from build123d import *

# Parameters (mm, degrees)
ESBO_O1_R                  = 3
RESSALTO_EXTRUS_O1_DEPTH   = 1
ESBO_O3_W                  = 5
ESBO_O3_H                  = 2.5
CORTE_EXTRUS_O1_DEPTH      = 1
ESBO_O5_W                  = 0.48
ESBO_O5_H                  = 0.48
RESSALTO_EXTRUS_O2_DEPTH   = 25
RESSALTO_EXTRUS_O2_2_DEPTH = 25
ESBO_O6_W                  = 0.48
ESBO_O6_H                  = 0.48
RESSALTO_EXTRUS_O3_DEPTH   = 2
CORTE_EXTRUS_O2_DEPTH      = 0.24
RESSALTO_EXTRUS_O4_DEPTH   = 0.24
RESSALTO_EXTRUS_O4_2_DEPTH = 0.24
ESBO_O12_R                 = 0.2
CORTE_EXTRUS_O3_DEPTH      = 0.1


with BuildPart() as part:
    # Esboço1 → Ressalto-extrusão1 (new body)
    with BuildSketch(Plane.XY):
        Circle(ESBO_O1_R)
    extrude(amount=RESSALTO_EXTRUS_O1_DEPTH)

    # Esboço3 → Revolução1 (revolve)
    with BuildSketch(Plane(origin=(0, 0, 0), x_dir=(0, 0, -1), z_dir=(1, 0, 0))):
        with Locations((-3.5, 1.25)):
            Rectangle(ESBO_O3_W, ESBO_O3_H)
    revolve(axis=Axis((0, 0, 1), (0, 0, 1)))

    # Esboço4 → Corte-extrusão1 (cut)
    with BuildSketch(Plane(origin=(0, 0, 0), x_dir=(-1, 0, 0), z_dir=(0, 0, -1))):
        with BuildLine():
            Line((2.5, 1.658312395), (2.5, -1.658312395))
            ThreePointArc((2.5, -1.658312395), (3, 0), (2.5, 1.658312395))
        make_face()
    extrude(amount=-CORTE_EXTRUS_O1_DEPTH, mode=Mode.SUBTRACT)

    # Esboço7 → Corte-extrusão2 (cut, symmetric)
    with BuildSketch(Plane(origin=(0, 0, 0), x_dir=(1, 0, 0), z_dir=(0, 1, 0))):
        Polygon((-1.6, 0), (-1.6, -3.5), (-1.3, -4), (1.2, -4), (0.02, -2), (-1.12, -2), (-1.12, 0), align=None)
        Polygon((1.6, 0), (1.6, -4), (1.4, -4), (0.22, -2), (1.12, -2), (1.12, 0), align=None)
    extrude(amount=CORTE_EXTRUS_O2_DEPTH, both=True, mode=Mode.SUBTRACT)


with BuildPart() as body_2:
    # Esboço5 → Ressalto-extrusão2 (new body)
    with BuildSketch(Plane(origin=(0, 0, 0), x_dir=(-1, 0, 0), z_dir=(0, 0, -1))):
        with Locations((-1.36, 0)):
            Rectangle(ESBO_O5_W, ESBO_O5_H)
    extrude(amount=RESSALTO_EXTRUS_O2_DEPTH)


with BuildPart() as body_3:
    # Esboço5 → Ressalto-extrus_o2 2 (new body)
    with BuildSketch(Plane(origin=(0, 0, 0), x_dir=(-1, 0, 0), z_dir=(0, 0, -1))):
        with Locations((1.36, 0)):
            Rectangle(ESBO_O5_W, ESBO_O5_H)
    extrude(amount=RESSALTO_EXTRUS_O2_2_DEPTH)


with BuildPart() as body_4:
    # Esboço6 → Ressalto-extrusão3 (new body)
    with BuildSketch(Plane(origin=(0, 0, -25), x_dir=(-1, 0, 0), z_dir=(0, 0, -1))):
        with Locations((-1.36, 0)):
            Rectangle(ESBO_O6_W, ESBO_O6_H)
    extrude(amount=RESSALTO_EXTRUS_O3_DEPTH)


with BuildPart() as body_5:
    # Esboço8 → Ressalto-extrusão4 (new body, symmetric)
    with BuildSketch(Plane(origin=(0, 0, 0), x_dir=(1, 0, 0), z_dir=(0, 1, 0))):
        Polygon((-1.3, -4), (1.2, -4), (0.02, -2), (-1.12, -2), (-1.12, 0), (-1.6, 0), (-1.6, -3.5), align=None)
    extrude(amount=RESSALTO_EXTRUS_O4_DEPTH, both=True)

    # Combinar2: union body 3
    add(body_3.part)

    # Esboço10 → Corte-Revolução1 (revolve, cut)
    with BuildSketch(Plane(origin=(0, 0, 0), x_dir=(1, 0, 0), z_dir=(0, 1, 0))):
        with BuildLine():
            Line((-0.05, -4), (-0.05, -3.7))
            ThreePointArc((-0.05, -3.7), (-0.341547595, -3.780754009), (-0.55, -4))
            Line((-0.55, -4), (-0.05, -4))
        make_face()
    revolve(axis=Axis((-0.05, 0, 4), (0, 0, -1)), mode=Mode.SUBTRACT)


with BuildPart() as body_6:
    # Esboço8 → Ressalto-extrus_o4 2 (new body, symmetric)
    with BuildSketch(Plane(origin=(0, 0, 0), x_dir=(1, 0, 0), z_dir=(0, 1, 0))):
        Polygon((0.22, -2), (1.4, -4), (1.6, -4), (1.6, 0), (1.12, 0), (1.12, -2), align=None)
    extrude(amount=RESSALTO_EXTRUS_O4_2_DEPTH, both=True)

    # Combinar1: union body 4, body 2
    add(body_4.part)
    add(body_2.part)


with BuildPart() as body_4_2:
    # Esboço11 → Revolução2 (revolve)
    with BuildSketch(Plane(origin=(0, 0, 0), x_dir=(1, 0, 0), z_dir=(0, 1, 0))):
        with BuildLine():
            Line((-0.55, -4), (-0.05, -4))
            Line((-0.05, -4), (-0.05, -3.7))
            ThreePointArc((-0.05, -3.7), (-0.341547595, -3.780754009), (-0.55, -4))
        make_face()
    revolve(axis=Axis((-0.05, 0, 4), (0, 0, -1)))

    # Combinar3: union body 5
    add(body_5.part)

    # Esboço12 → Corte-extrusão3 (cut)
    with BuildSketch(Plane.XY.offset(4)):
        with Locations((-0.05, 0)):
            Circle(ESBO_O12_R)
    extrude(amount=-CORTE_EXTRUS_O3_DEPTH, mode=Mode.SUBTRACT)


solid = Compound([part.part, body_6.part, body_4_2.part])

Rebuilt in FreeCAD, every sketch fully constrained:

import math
import FreeCAD as App
import Part
import Sketcher
from FreeCAD import Vector


def add_polygon(sketch, points):
    """Adds a closed chain of lines whose ends are joined by coincident constraints."""
    first, n = sketch.GeometryCount, len(points)
    for a, b in zip(points, points[1:] + points[:1]):
        sketch.addGeometry(Part.LineSegment(App.Vector(*a, 0), App.Vector(*b, 0)), False)
    for i in range(n):
        sketch.addConstraint(Sketcher.Constraint("Coincident", first + i, 2, first + (i + 1) % n, 1))

doc = App.newDocument("Part")
body = doc.addObject("PartDesign::Body", "Body")

# Sketch on XY plane
sketch1 = body.newObject("Sketcher::SketchObject", "Sketch")
sketch1.AttachmentSupport = (doc.getObject("XY_Plane"), [""])
sketch1.MapMode = "FlatFace"
sketch1.addGeometry(Part.Circle(Vector(0, 0, 0), Vector(0, 0, 1), 3), False)
sketch1.addConstraint(Sketcher.Constraint("Coincident", 0, 3, -1, 1))
sketch1.addConstraint(Sketcher.Constraint("Diameter", 0, 6.0))
pad1 = body.newObject("PartDesign::Pad", "Pad")
pad1.Profile = sketch1
pad1.Length = 1

# Sketch on YZ plane
sketch2 = body.newObject("Sketcher::SketchObject", "Sketch001")
sketch2.AttachmentSupport = (doc.getObject("YZ_Plane"), [""])
sketch2.MapMode = "FlatFace"
add_polygon(sketch2, [(2.5, 6), (0, 6), (0, 1), (2.5, 1)])  # lines 0-3
sketch2.addConstraint(Sketcher.Constraint("Horizontal", 0))
sketch2.addConstraint(Sketcher.Constraint("Vertical", 1))
sketch2.addConstraint(Sketcher.Constraint("Horizontal", 2))
sketch2.addConstraint(Sketcher.Constraint("Vertical", 3))
sketch2.addConstraint(Sketcher.Constraint("PointOnObject", 0, 2, -2))
sketch2.addConstraint(Sketcher.Constraint("DistanceY", 1, 2, 1, 1, 5.0))
sketch2.addConstraint(Sketcher.Constraint("DistanceX", 0, 2, 0, 1, 2.5))
sketch2.addConstraint(Sketcher.Constraint("DistanceY", -1, 1, 0, 2, 6.0))
revolution = body.newObject("PartDesign::Revolution", "Revolution")
revolution.Profile = sketch2
revolution.ReferenceAxis = (sketch2, ["V_Axis"])
revolution.Angle = 360

# Sketch on XY plane
sketch3 = body.newObject("Sketcher::SketchObject", "Sketch002")
sketch3.AttachmentSupport = (doc.getObject("XY_Plane"), [""])
sketch3.MapMode = "FlatFace"
sketch3.addGeometry(Part.LineSegment(Vector(-2.5, 1.7, 0), Vector(-2.5, -1.7, 0)), False)
sketch3.addGeometry(Part.ArcOfCircle(Part.Circle(Vector(0, 0, 0), Vector(0, 0, 1), 3), math.radians(146), math.radians(214)), False)
sketch3.addConstraint(Sketcher.Constraint("Coincident", 0, 1, 1, 1))
sketch3.addConstraint(Sketcher.Constraint("Coincident", 1, 2, 0, 2))
sketch3.addConstraint(Sketcher.Constraint("Vertical", 0))
sketch3.addConstraint(Sketcher.Constraint("Coincident", 1, 3, -1, 1))
sketch3.addConstraint(Sketcher.Constraint("Radius", 1, 3.0))
sketch3.addConstraint(Sketcher.Constraint("DistanceX", 0, 1, -1, 1, 2.5))
pocket1 = body.newObject("PartDesign::Pocket", "Pocket")
pocket1.Profile = sketch3
pocket1.Length = 1
pocket1.Reversed = True

# Sketch on XZ plane
sketch4 = body.newObject("Sketcher::SketchObject", "Sketch003")
sketch4.AttachmentSupport = (doc.getObject("XZ_Plane"), [""])
sketch4.MapMode = "FlatFace"
add_polygon(sketch4, [(-1.6, 0), (-1.6, 3.5), (-1.3, 4), (1.2, 4), (0.02, 2), (-1.12, 2), (-1.12, 0)])  # lines 0-6
add_polygon(sketch4, [(1.6, 4), (1.6, 0), (1.12, 0), (1.12, 2), (0.22, 2), (1.4, 4)])  # lines 7-12
sketch4.addConstraint(Sketcher.Constraint("Vertical", 0))
sketch4.addConstraint(Sketcher.Constraint("Horizontal", 2))
sketch4.addConstraint(Sketcher.Constraint("Horizontal", 4))
sketch4.addConstraint(Sketcher.Constraint("Vertical", 5))
sketch4.addConstraint(Sketcher.Constraint("Horizontal", 6))
sketch4.addConstraint(Sketcher.Constraint("Vertical", 7))
sketch4.addConstraint(Sketcher.Constraint("Horizontal", 8))
sketch4.addConstraint(Sketcher.Constraint("Vertical", 9))
sketch4.addConstraint(Sketcher.Constraint("Horizontal", 10))
sketch4.addConstraint(Sketcher.Constraint("Horizontal", 12))
sketch4.addConstraint(Sketcher.Constraint("Symmetric", 6, 2, 7, 2, -1, 1))
sketch4.addConstraint(Sketcher.Constraint("Symmetric", 5, 2, 8, 2, -2))
sketch4.addConstraint(Sketcher.Constraint("Parallel", 3, 11))
sketch4.addConstraint(Sketcher.Constraint("Horizontal", 4, 2, 9, 2))
sketch4.addConstraint(Sketcher.Constraint("Horizontal", 2, 2, 11, 2))
sketch4.addConstraint(Sketcher.Constraint("DistanceY", 5, 2, 5, 1, 2.0))
sketch4.addConstraint(Sketcher.Constraint("DistanceY", 7, 2, 7, 1, 4.0))
sketch4.addConstraint(Sketcher.Constraint("DistanceX", 2, 1, 2, 2, 2.5))
sketch4.addConstraint(Sketcher.Constraint("DistanceX", 10, 2, 10, 1, 0.9))
sketch4.addConstraint(Sketcher.Constraint("DistanceX", 12, 1, 12, 2, 0.2))
sketch4.addConstraint(Sketcher.Constraint("DistanceY", 0, 1, 0, 2, 3.5))
sketch4.addConstraint(Sketcher.Constraint("DistanceX", 4, 2, 4, 1, 1.14))
sketch4.addConstraint(Sketcher.Constraint("DistanceX", 6, 2, 6, 1, 0.48))
sketch4.addConstraint(Sketcher.Constraint("DistanceX", 0, 2, -1, 1, 1.6))
pocket2 = body.newObject("PartDesign::Pocket", "Pocket001")
pocket2.Profile = sketch4
pocket2.Length = 0.48
pocket2.Midplane = True
body2 = doc.addObject("PartDesign::Body", "Body001")

# Sketch on XY plane
sketch5 = body2.newObject("Sketcher::SketchObject", "Sketch004")
sketch5.AttachmentSupport = (doc.getObject("XY_Plane001"), [""])
sketch5.MapMode = "FlatFace"
add_polygon(sketch5, [(1.6, 0.24), (1.6, -0.24), (1.12, -0.24), (1.12, 0.24)])  # lines 0-3
sketch5.addConstraint(Sketcher.Constraint("Vertical", 0))
sketch5.addConstraint(Sketcher.Constraint("Horizontal", 1))
sketch5.addConstraint(Sketcher.Constraint("Vertical", 2))
sketch5.addConstraint(Sketcher.Constraint("Horizontal", 3))
sketch5.addConstraint(Sketcher.Constraint("Equal", 3, 0))
sketch5.addConstraint(Sketcher.Constraint("DistanceX", 1, 2, 1, 1, 0.48))
sketch5.addConstraint(Sketcher.Constraint("DistanceX", -1, 1, 0, 2, 1.6))
sketch5.addConstraint(Sketcher.Constraint("DistanceY", 0, 2, -1, 1, 0.24))
pad2 = body2.newObject("PartDesign::Pad", "Pad001")
pad2.Profile = sketch5
pad2.Length = 25
pad2.Reversed = True
body3 = doc.addObject("PartDesign::Body", "Body002")

# Sketch on XY plane
sketch6 = body3.newObject("Sketcher::SketchObject", "Sketch005")
sketch6.AttachmentSupport = (doc.getObject("XY_Plane002"), [""])
sketch6.MapMode = "FlatFace"
add_polygon(sketch6, [(-1.12, 0.24), (-1.12, -0.24), (-1.6, -0.24), (-1.6, 0.24)])  # lines 0-3
sketch6.addConstraint(Sketcher.Constraint("Vertical", 0))
sketch6.addConstraint(Sketcher.Constraint("Horizontal", 1))
sketch6.addConstraint(Sketcher.Constraint("Vertical", 2))
sketch6.addConstraint(Sketcher.Constraint("Horizontal", 3))
sketch6.addConstraint(Sketcher.Constraint("Equal", 3, 0))
sketch6.addConstraint(Sketcher.Constraint("DistanceX", 1, 2, 1, 1, 0.48))
sketch6.addConstraint(Sketcher.Constraint("DistanceX", 1, 2, -1, 1, 1.6))
sketch6.addConstraint(Sketcher.Constraint("DistanceY", 0, 2, -1, 1, 0.24))
pad3 = body3.newObject("PartDesign::Pad", "Pad002")
pad3.Profile = sketch6
pad3.Length = 25
pad3.Reversed = True
body4 = doc.addObject("PartDesign::Body", "Body003")

# Sketch on XY plane
sketch7 = body4.newObject("Sketcher::SketchObject", "Sketch006")
sketch7.AttachmentSupport = (doc.getObject("XY_Plane003"), [""])
sketch7.MapMode = "FlatFace"
sketch7.AttachmentOffset = App.Placement(Vector(0, 0, -25), App.Rotation())
add_polygon(sketch7, [(1.6, 0.24), (1.6, -0.24), (1.12, -0.24), (1.12, 0.24)])  # lines 0-3
sketch7.addConstraint(Sketcher.Constraint("Vertical", 0))
sketch7.addConstraint(Sketcher.Constraint("Horizontal", 1))
sketch7.addConstraint(Sketcher.Constraint("Vertical", 2))
sketch7.addConstraint(Sketcher.Constraint("Horizontal", 3))
sketch7.addConstraint(Sketcher.Constraint("Equal", 3, 0))
sketch7.addConstraint(Sketcher.Constraint("DistanceX", 1, 2, 1, 1, 0.48))
sketch7.addConstraint(Sketcher.Constraint("DistanceX", -1, 1, 0, 2, 1.6))
sketch7.addConstraint(Sketcher.Constraint("DistanceY", 0, 2, -1, 1, 0.24))
pad4 = body4.newObject("PartDesign::Pad", "Pad003")
pad4.Profile = sketch7
pad4.Length = 2
pad4.Reversed = True
body5 = doc.addObject("PartDesign::Body", "Body004")

# Sketch on XZ plane
sketch8 = body5.newObject("Sketcher::SketchObject", "Sketch007")
sketch8.AttachmentSupport = (doc.getObject("XZ_Plane004"), [""])
sketch8.MapMode = "FlatFace"
add_polygon(sketch8, [(-1.3, 4), (1.2, 4), (0.02, 2), (-1.12, 2), (-1.12, 0), (-1.6, 0), (-1.6, 3.5)])  # lines 0-6
sketch8.addConstraint(Sketcher.Constraint("Horizontal", 0))
sketch8.addConstraint(Sketcher.Constraint("Horizontal", 2))
sketch8.addConstraint(Sketcher.Constraint("Vertical", 3))
sketch8.addConstraint(Sketcher.Constraint("Horizontal", 4))
sketch8.addConstraint(Sketcher.Constraint("Vertical", 5))
sketch8.addConstraint(Sketcher.Constraint("PointOnObject", 3, 2, -1))
sketch8.addConstraint(Sketcher.Constraint("DistanceY", 3, 2, 3, 1, 2.0))
sketch8.addConstraint(Sketcher.Constraint("DistanceX", 0, 1, 0, 2, 2.5))
sketch8.addConstraint(Sketcher.Constraint("DistanceY", 5, 1, 5, 2, 3.5))
sketch8.addConstraint(Sketcher.Constraint("DistanceY", -1, 1, 0, 2, 4.0))
sketch8.addConstraint(Sketcher.Constraint("DistanceX", 2, 2, 2, 1, 1.14))
sketch8.addConstraint(Sketcher.Constraint("DistanceX", 4, 2, 4, 1, 0.48))
sketch8.addConstraint(Sketcher.Constraint("DistanceX", -1, 1, 0, 2, 1.2))
sketch8.addConstraint(Sketcher.Constraint("DistanceX", 4, 2, -1, 1, 1.6))
pad5 = body5.newObject("PartDesign::Pad", "Pad004")
pad5.Profile = sketch8
pad5.Length = 0.48
pad5.Midplane = True
doc.recompute()

boolean = body5.newObject("PartDesign::Boolean", "Boolean")
boolean.Type = "Fuse"
boolean.addObjects([body3])

# Sketch on XZ plane
sketch9 = body5.newObject("Sketcher::SketchObject", "Sketch008")
sketch9.AttachmentSupport = (doc.getObject("XZ_Plane004"), [""])
sketch9.MapMode = "FlatFace"
sketch9.addGeometry(Part.LineSegment(Vector(-0.05, 4, 0), Vector(-0.05, 3.7, 0)), False)
sketch9.addGeometry(Part.ArcOfCircle(Part.Circle(Vector(-0.05, 4.27, 0), Vector(0, 0, 1), 0.57), math.radians(-152), math.radians(-90)), False)
sketch9.addGeometry(Part.LineSegment(Vector(-0.55, 4, 0), Vector(-0.05, 4, 0)), False)
sketch9.addGeometry(Part.LineSegment(Vector(-0.05, 4.27, 0), Vector(-0.05, 3.7, 0)), True)  # axis
sketch9.addConstraint(Sketcher.Constraint("Coincident", 0, 2, 1, 2))
sketch9.addConstraint(Sketcher.Constraint("Coincident", 1, 1, 2, 1))
sketch9.addConstraint(Sketcher.Constraint("Coincident", 2, 2, 0, 1))
sketch9.addConstraint(Sketcher.Constraint("Vertical", 0))
sketch9.addConstraint(Sketcher.Constraint("Horizontal", 2))
sketch9.addConstraint(Sketcher.Constraint("Vertical", 3))
sketch9.addConstraint(Sketcher.Constraint("Coincident", 3, 1, 1, 3))
sketch9.addConstraint(Sketcher.Constraint("Coincident", 3, 2, 0, 2))
sketch9.addConstraint(Sketcher.Constraint("DistanceX", 2, 1, 2, 2, 0.5))
sketch9.addConstraint(Sketcher.Constraint("DistanceY", 0, 2, 0, 1, 0.3))
sketch9.addConstraint(Sketcher.Constraint("DistanceY", -1, 1, 1, 1, 4.0))
sketch9.addConstraint(Sketcher.Constraint("DistanceX", 1, 3, -1, 1, 0.05))
groove = body5.newObject("PartDesign::Groove", "Groove")
groove.Profile = sketch9
groove.ReferenceAxis = (sketch9, ["Axis0"])
groove.Angle = 360
body6 = doc.addObject("PartDesign::Body", "Body005")
body6.AllowCompound = True

# Sketch on XZ plane
sketch10 = body6.newObject("Sketcher::SketchObject", "Sketch009")
sketch10.AttachmentSupport = (doc.getObject("XZ_Plane005"), [""])
sketch10.MapMode = "FlatFace"
add_polygon(sketch10, [(0.22, 2), (1.4, 4), (1.6, 4), (1.6, 0), (1.12, 0), (1.12, 2)])  # lines 0-5
sketch10.addConstraint(Sketcher.Constraint("Horizontal", 1))
sketch10.addConstraint(Sketcher.Constraint("Vertical", 2))
sketch10.addConstraint(Sketcher.Constraint("Horizontal", 3))
sketch10.addConstraint(Sketcher.Constraint("Vertical", 4))
sketch10.addConstraint(Sketcher.Constraint("Horizontal", 5))
sketch10.addConstraint(Sketcher.Constraint("PointOnObject", 2, 2, -1))
sketch10.addConstraint(Sketcher.Constraint("DistanceY", 2, 2, 2, 1, 4.0))
sketch10.addConstraint(Sketcher.Constraint("DistanceY", 4, 1, 4, 2, 2.0))
sketch10.addConstraint(Sketcher.Constraint("DistanceX", 1, 1, 1, 2, 0.2))
sketch10.addConstraint(Sketcher.Constraint("DistanceX", 5, 2, 5, 1, 0.9))
sketch10.addConstraint(Sketcher.Constraint("DistanceX", 3, 2, 3, 1, 0.48))
sketch10.addConstraint(Sketcher.Constraint("DistanceX", -1, 1, 0, 2, 1.4))
pad6 = body6.newObject("PartDesign::Pad", "Pad005")
pad6.Profile = sketch10
pad6.Length = 0.48
pad6.Midplane = True
doc.recompute()

boolean2 = body6.newObject("PartDesign::Boolean", "Boolean001")
boolean2.Type = "Fuse"
boolean2.addObjects([body4])
doc.recompute()

boolean3 = body6.newObject("PartDesign::Boolean", "Boolean002")
boolean3.Type = "Fuse"
boolean3.addObjects([body2])
body7 = doc.addObject("PartDesign::Body", "Body006")

# Sketch on XZ plane
sketch11 = body7.newObject("Sketcher::SketchObject", "Sketch010")
sketch11.AttachmentSupport = (doc.getObject("XZ_Plane006"), [""])
sketch11.MapMode = "FlatFace"
sketch11.addGeometry(Part.LineSegment(Vector(-0.55, 4, 0), Vector(-0.05, 4, 0)), False)
sketch11.addGeometry(Part.LineSegment(Vector(-0.05, 4, 0), Vector(-0.05, 3.7, 0)), False)
sketch11.addGeometry(Part.ArcOfCircle(Part.Circle(Vector(-0.05, 4.27, 0), Vector(0, 0, 1), 0.57), math.radians(-152), math.radians(-90)), False)
sketch11.addGeometry(Part.LineSegment(Vector(-0.05, 4.27, 0), Vector(-0.05, 3.7, 0)), True)  # axis
sketch11.addConstraint(Sketcher.Constraint("Coincident", 0, 2, 1, 1))
sketch11.addConstraint(Sketcher.Constraint("Coincident", 1, 2, 2, 2))
sketch11.addConstraint(Sketcher.Constraint("Coincident", 2, 1, 0, 1))
sketch11.addConstraint(Sketcher.Constraint("Horizontal", 0))
sketch11.addConstraint(Sketcher.Constraint("Vertical", 1))
sketch11.addConstraint(Sketcher.Constraint("Vertical", 3))
sketch11.addConstraint(Sketcher.Constraint("Coincident", 3, 1, 2, 3))
sketch11.addConstraint(Sketcher.Constraint("Coincident", 3, 2, 1, 2))
sketch11.addConstraint(Sketcher.Constraint("DistanceX", 0, 1, 0, 2, 0.5))
sketch11.addConstraint(Sketcher.Constraint("DistanceY", 1, 2, 1, 1, 0.3))
sketch11.addConstraint(Sketcher.Constraint("DistanceY", -1, 1, 0, 2, 4.0))
sketch11.addConstraint(Sketcher.Constraint("DistanceX", 2, 3, -1, 1, 0.05))
revolution2 = body7.newObject("PartDesign::Revolution", "Revolution001")
revolution2.Profile = sketch11
revolution2.ReferenceAxis = (sketch11, ["Axis0"])
revolution2.Angle = 360
doc.recompute()

boolean4 = body7.newObject("PartDesign::Boolean", "Boolean003")
boolean4.Type = "Fuse"
boolean4.addObjects([body5])

# Sketch on XY plane
sketch12 = body7.newObject("Sketcher::SketchObject", "Sketch011")
sketch12.AttachmentSupport = (doc.getObject("XY_Plane006"), [""])
sketch12.MapMode = "FlatFace"
sketch12.AttachmentOffset = App.Placement(Vector(0, 0, 4), App.Rotation())
sketch12.addGeometry(Part.Circle(Vector(-0.05, 0, 0), Vector(0, 0, 1), 0.2), False)
sketch12.addConstraint(Sketcher.Constraint("PointOnObject", 0, 3, -1))
sketch12.addConstraint(Sketcher.Constraint("Diameter", 0, 0.4))
sketch12.addConstraint(Sketcher.Constraint("DistanceX", 0, 3, -1, 1, 0.05))
pocket3 = body7.newObject("PartDesign::Pocket", "Pocket002")
pocket3.Profile = sketch12
pocket3.Length = 0.1

doc.recompute()
